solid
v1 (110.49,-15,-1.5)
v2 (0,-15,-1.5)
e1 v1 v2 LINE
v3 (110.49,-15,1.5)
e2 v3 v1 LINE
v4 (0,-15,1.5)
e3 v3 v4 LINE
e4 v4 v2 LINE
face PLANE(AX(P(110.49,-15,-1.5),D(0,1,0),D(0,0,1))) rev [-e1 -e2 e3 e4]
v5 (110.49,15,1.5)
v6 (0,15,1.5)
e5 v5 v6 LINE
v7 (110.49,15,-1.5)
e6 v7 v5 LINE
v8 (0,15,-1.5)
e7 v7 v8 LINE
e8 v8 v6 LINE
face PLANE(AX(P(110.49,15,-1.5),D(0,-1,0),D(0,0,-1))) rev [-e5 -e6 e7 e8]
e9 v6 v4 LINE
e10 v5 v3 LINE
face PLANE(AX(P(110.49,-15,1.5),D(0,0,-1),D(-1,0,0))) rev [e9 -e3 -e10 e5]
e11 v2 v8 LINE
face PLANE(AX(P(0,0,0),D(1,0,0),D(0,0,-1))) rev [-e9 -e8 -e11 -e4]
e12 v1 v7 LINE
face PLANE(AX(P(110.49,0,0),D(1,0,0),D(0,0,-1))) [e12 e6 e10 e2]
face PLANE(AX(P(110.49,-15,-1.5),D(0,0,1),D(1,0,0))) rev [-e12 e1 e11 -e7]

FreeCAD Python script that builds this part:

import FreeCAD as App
import Part
import Sketcher
Q = App.Units.Quantity

doc = App.newDocument("Part")
body = doc.addObject("PartDesign::Body", "Body")

sketch1 = body.newObject("Sketcher::SketchObject", "Sketch")
sketch1.AttachmentSupport = (doc.getObject("YZ_Plane"), [""])
sketch1.MapMode = "FlatFace"
sketch1.addGeometry([
    Part.LineSegment(App.Vector(15, 1.5, 0), App.Vector(-15, 1.5, 0)),
    Part.LineSegment(App.Vector(-15, 1.5, 0), App.Vector(-15, -1.5, 0)),
    Part.LineSegment(App.Vector(-15, -1.5, 0), App.Vector(15, -1.5, 0)),
    Part.LineSegment(App.Vector(15, -1.5, 0), App.Vector(15, 1.5, 0)),
], False)
sketch1.addConstraint([
    Sketcher.Constraint("Coincident", 0, 2, 1, 1),
    Sketcher.Constraint("Coincident", 1, 2, 2, 1),
    Sketcher.Constraint("Coincident", 2, 2, 3, 1),
    Sketcher.Constraint("Coincident", 3, 2, 0, 1),
    Sketcher.Constraint("Horizontal", 0),
    Sketcher.Constraint("Vertical", 1),
    Sketcher.Constraint("Horizontal", 2),
    Sketcher.Constraint("Vertical", 3),
    Sketcher.Constraint("Symmetric", 0, 2, 2, 2, -1, 1),
    Sketcher.Constraint("DistanceX", 0, 2, 0, 1, Q("30 mm")),
    Sketcher.Constraint("DistanceY", 1, 2, 1, 1, Q("3 mm")),
])
pad1 = body.newObject("PartDesign::Pad", "Pad")
pad1.Profile = sketch1
pad1.Length = 110.49

doc.recompute()
